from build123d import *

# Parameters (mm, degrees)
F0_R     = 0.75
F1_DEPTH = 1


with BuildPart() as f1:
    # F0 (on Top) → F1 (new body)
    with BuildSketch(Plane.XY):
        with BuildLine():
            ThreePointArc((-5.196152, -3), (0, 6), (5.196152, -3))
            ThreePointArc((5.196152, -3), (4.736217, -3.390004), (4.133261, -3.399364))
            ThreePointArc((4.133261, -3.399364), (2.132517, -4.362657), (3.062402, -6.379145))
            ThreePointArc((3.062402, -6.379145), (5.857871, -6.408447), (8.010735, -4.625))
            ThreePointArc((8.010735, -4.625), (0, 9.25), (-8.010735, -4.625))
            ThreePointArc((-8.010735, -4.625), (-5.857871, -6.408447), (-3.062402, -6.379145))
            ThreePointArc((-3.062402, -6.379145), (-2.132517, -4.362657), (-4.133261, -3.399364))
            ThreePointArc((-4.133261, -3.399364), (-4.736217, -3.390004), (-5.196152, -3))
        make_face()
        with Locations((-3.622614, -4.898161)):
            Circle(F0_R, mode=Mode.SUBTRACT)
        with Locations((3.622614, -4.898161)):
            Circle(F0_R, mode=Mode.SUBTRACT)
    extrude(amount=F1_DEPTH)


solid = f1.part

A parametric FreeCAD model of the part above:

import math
import FreeCAD as App
import Part
import Sketcher
from FreeCAD import Vector
Q = App.Units.Quantity

doc = App.newDocument("Part")
params = doc.addObject("Spreadsheet::Sheet", "Params")
for row, (alias, value) in enumerate([
    ("sketch1_radius", "6 mm"),
    ("sketch1_diameter", "1.5 mm"),
    ("sketch1_radius2", "9.25 mm"),
    ("pad1_length", "1 mm"),
], start=1):
    params.set(f"A{row}", alias)
    params.set(f"B{row}", "=" + value)
    params.setAlias(f"B{row}", alias)

body = doc.addObject("PartDesign::Body", "Body")

# Sketch on XY plane
sketch1 = body.newObject("Sketcher::SketchObject", "Sketch")
sketch1.AttachmentSupport = (doc.getObject("XY_Plane"), [""])
sketch1.MapMode = "FlatFace"
sketch1.addGeometry([
    Part.ArcOfCircle(Part.Circle(Vector(0, 0, 0), Vector(0, 0, 1), 6), math.radians(-30.000004), math.radians(210.000004)),  # 0
    Part.ArcOfCircle(Part.Circle(Vector(4.421671, -2.552852, 0), Vector(0, 0, 1), 0.894294), math.radians(-108.814178), math.radians(-30.000036)),  # 1
    Part.ArcOfCircle(Part.Circle(Vector(3.622614, -4.898161, 0), Vector(0, 0, 1), 1.583399), math.radians(71.185769), math.radians(249.279886)),  # 2
    Part.ArcOfCircle(Part.Circle(Vector(4.50013, -2.578344, 0), Vector(0, 0, 1), 4.063637), math.radians(-110.720114), math.radians(-30.241856)),  # 3
    Part.ArcOfCircle(Part.Circle(Vector(0, 0, 0), Vector(0, 0, 1), 9.25), math.radians(-30), math.radians(210)),  # 4
    Part.ArcOfCircle(Part.Circle(Vector(-4.50013, -2.578344, 0), Vector(0, 0, 1), 4.063637), math.radians(-149.758144), math.radians(-69.279886)),  # 5
    Part.ArcOfCircle(Part.Circle(Vector(-3.622614, -4.898161, 0), Vector(0, 0, 1), 1.583399), math.radians(-69.279886), math.radians(108.814231)),  # 6
    Part.ArcOfCircle(Part.Circle(Vector(-4.421671, -2.552852, 0), Vector(0, 0, 1), 0.894294), math.radians(-149.999964), math.radians(-71.185822)),  # 7
    Part.Circle(Vector(-3.622614, -4.898161, 0), Vector(0, 0, 1), 0.75),  # 8
    Part.Circle(Vector(3.622614, -4.898161, 0), Vector(0, 0, 1), 0.75),  # 9
], False)
sketch1.addConstraint([
    Sketcher.Constraint("Tangent", 0, 1, 1, 2),
    Sketcher.Constraint("Tangent", 1, 1, 2, 1),
    Sketcher.Constraint("Tangent", 2, 2, 3, 1),
    Sketcher.Constraint("Coincident", 3, 2, 4, 1),
    Sketcher.Constraint("Coincident", 4, 2, 5, 1),
    Sketcher.Constraint("Tangent", 5, 2, 6, 1),
    Sketcher.Constraint("Tangent", 6, 2, 7, 2),
    Sketcher.Constraint("Tangent", 7, 1, 0, 2),
    Sketcher.Constraint("Coincident", 0, 3, -1, 1),
    Sketcher.Constraint("Coincident", 4, 3, -1, 1),
    Sketcher.Constraint("Coincident", 8, 3, 6, 3),
    Sketcher.Constraint("Coincident", 9, 3, 2, 3),
    Sketcher.Constraint("Equal", 3, 5),
    Sketcher.Constraint("Equal", 2, 6),
    Sketcher.Constraint("Equal", 1, 7),
    Sketcher.Constraint("Equal", 8, 9),
    Sketcher.Constraint("Symmetric", 3, 3, 5, 3, -2),
    Sketcher.Constraint("Horizontal", 2, 3, 6, 3),
    Sketcher.Constraint("Radius", 0, Q("6 mm")),
    Sketcher.Constraint("Diameter", 8, Q("1.5 mm")),
    Sketcher.Constraint("Radius", 4, Q("9.25 mm")),
    Sketcher.Constraint("DistanceY", 0, 1, -1, 1, Q("3 mm")),
    Sketcher.Constraint("Radius", 2, Q("1.583399 mm")),
    Sketcher.Constraint("DistanceY", 3, 2, -1, 1, Q("4.625 mm")),
    Sketcher.Constraint("Radius", 1, Q("0.894294 mm")),
    Sketcher.Constraint("Radius", 3, Q("4.063637 mm")),
    Sketcher.Constraint("DistanceX", 5, 3, 1, 3, Q("8.921801 mm")),
])
sketch1.setExpression("Constraints[18]", "Params.sketch1_radius")
sketch1.setExpression("Constraints[19]", "Params.sketch1_diameter")
sketch1.setExpression("Constraints[20]", "Params.sketch1_radius2")
pad1 = body.newObject("PartDesign::Pad", "Pad")
pad1.Profile = sketch1
pad1.setExpression("Length", "Params.pad1_length")

doc.recompute()
